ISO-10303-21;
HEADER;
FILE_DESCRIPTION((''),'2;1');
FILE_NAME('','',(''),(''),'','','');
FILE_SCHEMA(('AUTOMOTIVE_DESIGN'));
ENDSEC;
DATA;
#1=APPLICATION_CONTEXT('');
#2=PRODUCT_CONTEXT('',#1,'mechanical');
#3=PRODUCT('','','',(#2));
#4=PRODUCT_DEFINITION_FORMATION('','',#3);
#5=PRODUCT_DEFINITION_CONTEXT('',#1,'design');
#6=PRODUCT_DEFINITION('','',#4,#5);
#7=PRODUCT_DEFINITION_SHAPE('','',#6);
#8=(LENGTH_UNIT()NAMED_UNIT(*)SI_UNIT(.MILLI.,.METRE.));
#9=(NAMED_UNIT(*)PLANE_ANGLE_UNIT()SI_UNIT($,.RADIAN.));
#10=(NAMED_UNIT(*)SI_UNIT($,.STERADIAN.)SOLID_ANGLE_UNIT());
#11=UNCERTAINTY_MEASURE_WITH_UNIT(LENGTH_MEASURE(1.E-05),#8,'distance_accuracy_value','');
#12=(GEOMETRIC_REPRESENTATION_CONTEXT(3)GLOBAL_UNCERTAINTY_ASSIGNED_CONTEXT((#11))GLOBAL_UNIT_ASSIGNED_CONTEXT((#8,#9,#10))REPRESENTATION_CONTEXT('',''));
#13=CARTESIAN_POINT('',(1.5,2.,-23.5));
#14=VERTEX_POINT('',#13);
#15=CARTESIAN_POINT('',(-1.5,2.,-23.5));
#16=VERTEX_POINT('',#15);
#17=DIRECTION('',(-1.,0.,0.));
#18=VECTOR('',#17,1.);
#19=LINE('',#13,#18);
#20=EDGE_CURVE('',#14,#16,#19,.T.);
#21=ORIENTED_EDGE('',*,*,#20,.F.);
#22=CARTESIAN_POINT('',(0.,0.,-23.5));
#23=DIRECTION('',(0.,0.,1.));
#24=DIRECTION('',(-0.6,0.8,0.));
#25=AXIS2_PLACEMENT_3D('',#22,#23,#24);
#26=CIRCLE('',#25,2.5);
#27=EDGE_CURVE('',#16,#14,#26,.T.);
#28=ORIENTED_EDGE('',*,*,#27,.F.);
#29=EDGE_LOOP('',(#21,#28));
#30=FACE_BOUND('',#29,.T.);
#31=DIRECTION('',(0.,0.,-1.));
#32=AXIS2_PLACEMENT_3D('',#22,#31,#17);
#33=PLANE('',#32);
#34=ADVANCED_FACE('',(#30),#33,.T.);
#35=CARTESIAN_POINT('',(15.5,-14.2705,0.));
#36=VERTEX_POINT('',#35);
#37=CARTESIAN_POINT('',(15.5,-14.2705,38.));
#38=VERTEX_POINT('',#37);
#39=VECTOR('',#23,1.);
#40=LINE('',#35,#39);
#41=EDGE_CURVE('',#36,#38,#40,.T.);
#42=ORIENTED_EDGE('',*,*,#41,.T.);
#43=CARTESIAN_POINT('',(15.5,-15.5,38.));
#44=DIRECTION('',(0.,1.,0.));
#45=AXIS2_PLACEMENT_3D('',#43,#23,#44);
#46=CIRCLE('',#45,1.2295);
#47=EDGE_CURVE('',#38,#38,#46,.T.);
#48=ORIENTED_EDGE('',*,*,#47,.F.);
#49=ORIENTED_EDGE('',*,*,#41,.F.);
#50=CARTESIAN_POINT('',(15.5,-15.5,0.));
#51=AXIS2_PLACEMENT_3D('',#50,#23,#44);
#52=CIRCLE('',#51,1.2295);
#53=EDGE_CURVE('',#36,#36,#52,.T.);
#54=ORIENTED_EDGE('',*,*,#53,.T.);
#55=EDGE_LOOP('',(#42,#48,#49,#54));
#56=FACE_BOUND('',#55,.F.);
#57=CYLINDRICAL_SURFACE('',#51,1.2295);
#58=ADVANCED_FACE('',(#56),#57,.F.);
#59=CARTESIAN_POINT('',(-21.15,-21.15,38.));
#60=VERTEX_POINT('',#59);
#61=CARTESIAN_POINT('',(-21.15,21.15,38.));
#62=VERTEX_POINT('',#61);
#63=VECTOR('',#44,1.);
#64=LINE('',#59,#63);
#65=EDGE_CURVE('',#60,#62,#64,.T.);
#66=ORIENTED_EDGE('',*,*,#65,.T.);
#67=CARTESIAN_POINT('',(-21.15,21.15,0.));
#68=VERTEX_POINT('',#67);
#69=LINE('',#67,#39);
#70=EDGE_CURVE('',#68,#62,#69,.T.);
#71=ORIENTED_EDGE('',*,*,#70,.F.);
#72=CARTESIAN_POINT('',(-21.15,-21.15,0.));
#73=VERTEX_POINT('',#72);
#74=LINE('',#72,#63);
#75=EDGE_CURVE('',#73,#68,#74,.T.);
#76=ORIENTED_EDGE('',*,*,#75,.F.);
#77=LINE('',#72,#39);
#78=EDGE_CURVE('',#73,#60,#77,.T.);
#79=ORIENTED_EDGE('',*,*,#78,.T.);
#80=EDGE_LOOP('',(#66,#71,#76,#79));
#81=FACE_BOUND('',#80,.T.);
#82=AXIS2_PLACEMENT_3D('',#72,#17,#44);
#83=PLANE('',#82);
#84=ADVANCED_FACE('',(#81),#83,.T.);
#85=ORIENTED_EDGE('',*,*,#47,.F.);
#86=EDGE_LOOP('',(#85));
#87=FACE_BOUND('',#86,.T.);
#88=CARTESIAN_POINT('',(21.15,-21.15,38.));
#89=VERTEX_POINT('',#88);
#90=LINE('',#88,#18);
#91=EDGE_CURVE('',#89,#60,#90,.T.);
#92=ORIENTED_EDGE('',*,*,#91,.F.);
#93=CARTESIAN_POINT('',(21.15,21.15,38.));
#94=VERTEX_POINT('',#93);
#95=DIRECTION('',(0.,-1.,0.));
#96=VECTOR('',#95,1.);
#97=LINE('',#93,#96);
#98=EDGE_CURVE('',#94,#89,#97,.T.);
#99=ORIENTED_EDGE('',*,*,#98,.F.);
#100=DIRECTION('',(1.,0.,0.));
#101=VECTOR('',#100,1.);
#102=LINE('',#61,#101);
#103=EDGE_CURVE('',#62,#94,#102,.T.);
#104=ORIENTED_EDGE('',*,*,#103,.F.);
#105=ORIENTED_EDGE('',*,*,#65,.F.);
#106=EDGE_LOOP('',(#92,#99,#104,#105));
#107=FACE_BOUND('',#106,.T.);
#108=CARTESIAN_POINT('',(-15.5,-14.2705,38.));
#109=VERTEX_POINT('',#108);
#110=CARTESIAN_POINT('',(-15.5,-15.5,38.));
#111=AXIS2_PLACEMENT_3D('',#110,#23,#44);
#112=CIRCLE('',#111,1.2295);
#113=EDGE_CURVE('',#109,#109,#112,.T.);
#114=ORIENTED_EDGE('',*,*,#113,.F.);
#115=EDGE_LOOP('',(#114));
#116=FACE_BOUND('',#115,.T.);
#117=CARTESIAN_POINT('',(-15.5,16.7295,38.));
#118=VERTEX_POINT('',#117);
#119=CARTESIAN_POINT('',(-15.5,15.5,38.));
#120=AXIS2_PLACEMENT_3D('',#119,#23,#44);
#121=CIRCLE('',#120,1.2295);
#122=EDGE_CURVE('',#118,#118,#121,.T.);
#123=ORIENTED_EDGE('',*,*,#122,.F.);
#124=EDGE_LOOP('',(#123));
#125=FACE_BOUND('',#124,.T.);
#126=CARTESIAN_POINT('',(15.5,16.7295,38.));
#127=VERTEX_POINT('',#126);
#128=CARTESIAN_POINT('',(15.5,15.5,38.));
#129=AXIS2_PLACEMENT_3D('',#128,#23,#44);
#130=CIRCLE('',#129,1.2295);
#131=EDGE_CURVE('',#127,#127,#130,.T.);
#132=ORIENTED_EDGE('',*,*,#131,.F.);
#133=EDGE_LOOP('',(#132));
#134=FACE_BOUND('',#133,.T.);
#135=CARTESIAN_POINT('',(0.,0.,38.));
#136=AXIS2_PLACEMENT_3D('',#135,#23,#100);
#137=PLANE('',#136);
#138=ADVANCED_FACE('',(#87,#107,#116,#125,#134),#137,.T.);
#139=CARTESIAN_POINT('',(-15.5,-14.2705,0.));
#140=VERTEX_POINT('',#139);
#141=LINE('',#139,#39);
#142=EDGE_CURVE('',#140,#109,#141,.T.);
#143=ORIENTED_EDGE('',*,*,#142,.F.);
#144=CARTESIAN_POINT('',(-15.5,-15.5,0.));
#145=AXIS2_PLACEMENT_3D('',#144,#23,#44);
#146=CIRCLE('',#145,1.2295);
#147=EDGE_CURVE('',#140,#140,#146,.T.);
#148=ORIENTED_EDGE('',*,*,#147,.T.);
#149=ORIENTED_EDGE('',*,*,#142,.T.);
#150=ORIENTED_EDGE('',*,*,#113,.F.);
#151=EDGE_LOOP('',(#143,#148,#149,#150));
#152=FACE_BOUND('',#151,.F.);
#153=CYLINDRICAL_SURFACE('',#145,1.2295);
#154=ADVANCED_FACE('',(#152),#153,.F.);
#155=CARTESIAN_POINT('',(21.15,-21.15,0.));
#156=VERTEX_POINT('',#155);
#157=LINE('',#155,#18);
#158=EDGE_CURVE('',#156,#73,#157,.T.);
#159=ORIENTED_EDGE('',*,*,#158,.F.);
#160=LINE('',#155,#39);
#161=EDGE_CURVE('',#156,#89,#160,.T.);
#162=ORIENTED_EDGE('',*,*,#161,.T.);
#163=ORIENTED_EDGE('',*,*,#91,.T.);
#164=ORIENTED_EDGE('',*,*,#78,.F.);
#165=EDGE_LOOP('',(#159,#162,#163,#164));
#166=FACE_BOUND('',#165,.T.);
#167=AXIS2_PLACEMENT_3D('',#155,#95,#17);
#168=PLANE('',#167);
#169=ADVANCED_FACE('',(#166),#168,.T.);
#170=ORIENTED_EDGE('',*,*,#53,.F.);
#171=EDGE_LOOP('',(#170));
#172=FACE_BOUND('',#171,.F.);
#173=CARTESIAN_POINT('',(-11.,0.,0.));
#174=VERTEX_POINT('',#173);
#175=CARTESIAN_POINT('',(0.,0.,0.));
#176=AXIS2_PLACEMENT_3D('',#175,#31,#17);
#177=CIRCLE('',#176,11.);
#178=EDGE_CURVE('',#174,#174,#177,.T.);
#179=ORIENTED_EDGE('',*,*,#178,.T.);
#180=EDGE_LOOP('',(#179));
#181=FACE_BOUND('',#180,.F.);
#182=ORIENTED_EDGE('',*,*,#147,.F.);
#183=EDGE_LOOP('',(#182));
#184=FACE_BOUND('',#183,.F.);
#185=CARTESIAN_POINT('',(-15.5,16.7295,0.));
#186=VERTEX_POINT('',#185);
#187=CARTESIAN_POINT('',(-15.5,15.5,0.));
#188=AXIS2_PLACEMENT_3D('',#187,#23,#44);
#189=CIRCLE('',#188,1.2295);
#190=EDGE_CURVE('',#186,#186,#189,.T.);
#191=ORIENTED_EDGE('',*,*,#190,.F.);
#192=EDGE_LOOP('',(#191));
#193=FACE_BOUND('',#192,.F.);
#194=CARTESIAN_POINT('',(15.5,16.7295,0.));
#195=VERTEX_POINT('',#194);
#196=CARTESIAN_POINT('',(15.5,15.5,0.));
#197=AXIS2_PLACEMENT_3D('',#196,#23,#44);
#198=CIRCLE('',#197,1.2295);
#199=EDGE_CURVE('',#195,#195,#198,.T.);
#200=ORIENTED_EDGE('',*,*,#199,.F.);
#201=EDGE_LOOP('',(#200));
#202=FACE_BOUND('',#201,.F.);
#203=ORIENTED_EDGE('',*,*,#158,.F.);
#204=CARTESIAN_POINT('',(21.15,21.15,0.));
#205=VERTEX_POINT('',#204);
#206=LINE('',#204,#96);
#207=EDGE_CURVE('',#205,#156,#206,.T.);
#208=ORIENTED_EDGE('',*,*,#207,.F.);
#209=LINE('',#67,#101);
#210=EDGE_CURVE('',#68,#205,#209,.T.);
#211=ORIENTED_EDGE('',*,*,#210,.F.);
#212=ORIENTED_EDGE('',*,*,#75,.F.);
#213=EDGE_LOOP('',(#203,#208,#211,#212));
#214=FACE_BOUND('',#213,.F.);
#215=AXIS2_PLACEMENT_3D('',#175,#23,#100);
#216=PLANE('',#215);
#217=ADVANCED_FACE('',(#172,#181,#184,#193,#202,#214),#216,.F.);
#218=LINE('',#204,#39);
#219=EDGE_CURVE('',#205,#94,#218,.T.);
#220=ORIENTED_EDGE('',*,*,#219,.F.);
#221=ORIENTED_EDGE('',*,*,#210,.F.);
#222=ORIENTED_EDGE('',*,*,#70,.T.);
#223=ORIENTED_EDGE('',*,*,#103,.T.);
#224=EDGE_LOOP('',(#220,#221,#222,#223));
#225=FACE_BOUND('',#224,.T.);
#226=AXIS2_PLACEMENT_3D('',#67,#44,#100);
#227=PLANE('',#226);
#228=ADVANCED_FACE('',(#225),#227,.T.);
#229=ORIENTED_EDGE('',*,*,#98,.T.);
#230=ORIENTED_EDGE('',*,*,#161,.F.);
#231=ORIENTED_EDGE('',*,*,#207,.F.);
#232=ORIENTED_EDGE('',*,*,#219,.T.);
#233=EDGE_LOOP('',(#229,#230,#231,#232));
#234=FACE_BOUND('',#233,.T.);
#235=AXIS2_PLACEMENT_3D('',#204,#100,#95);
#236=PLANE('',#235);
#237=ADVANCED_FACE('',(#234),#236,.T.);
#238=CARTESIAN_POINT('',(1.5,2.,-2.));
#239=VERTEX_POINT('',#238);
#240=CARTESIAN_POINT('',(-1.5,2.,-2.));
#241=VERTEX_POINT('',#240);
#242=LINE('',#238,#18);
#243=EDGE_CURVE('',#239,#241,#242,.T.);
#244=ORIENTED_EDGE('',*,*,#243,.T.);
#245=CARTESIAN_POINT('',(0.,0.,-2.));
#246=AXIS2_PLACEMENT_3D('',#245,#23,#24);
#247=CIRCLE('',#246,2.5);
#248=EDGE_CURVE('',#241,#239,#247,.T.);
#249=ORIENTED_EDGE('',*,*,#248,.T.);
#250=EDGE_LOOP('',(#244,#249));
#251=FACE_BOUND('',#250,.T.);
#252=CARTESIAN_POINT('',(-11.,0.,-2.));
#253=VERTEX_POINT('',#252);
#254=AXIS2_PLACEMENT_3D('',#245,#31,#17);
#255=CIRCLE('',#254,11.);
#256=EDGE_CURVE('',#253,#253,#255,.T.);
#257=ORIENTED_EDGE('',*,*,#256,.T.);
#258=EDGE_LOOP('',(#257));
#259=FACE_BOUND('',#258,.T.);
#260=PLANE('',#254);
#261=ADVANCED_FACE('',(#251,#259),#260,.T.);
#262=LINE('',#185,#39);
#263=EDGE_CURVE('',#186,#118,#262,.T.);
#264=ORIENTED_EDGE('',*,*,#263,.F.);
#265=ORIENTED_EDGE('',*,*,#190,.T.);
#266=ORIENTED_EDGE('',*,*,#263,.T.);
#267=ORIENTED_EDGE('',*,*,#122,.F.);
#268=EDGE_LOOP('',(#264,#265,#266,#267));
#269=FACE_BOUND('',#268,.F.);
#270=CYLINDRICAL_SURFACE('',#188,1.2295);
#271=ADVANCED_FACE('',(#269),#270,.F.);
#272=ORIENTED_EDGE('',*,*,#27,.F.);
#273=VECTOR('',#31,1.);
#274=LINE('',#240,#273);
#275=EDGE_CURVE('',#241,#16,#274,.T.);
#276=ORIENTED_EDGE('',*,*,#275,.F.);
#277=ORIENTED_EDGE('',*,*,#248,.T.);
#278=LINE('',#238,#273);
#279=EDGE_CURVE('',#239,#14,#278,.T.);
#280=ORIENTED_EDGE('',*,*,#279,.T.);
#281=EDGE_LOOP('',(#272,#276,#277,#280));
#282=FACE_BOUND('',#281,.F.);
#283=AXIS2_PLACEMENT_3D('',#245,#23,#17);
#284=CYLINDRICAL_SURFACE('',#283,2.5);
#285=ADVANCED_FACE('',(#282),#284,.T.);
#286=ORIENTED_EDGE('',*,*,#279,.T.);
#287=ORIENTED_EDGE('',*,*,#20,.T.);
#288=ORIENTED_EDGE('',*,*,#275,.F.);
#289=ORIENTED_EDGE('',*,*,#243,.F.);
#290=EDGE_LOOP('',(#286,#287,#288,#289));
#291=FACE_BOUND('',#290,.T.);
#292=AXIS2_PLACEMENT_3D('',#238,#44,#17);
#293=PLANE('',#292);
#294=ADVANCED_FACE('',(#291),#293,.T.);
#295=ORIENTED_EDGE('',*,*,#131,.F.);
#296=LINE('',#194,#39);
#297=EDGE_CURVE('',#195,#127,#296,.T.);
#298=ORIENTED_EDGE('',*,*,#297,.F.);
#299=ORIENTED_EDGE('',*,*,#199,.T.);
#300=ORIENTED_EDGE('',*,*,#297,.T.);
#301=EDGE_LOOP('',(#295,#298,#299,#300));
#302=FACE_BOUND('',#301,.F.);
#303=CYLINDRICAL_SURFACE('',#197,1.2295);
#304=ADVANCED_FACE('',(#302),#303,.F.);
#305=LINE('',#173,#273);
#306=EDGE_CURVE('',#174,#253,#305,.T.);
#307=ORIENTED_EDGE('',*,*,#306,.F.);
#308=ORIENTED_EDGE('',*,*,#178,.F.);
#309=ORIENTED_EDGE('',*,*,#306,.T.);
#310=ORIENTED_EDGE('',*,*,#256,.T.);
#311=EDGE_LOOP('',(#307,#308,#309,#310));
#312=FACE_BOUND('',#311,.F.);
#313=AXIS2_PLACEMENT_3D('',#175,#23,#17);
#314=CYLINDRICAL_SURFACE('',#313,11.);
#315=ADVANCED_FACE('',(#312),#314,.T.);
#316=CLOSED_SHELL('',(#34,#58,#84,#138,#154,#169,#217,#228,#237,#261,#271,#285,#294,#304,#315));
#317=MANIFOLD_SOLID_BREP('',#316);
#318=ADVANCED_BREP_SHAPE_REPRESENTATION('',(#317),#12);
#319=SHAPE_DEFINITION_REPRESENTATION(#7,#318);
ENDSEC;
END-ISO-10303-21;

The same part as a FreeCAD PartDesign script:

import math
import FreeCAD as App
import Part
import Sketcher

V = App.Vector

doc = App.newDocument("Part")
body = doc.addObject("PartDesign::Body", "Body")

# Sketch on XY plane
sketch1 = doc.addObject("Sketcher::SketchObject", "Sketch")
body.addObject(sketch1)
sketch1.AttachmentSupport = (doc.XY_Plane, [""])
sketch1.MapMode = "FlatFace"
sketch1.addGeometry([
    Part.LineSegment(V(-21, -21, 0), V(21, -21, 0)),
    Part.LineSegment(V(21, -21, 0), V(21, 21, 0)),
    Part.LineSegment(V(21, 21, 0), V(-21, 21, 0)),
    Part.LineSegment(V(-21, 21, 0), V(-21, -21, 0)),
], False)
sketch1.addConstraint([
    Sketcher.Constraint("Coincident", 0, 2, 1, 1),
    Sketcher.Constraint("Coincident", 1, 2, 2, 1),
    Sketcher.Constraint("Coincident", 2, 2, 3, 1),
    Sketcher.Constraint("Coincident", 3, 2, 0, 1),
    Sketcher.Constraint("Horizontal", 0),
    Sketcher.Constraint("Vertical", 1),
    Sketcher.Constraint("Horizontal", 2),
    Sketcher.Constraint("Vertical", 3),
    Sketcher.Constraint("Symmetric", 0, 2, 2, 2, -1, 1),
    Sketcher.Constraint("Equal", 2, 1),
    Sketcher.Constraint("DistanceX", 0, 1, 0, 2, 42.3),
])
pad1 = doc.addObject("PartDesign::Pad", "Pad")
body.addObject(pad1)
pad1.Profile = sketch1
pad1.Length = 38

# Sketch on XY plane
sketch2 = doc.addObject("Sketcher::SketchObject", "Sketch001")
body.addObject(sketch2)
sketch2.AttachmentSupport = (doc.XY_Plane, [""])
sketch2.MapMode = "FlatFace"
sketch2.addGeometry([
    Part.Circle(V(15.5, 15.5, 0), V(0, 0, 1), 1.2),
    Part.Circle(V(-15.5, 15.5, 0), V(0, 0, 1), 1.2),
    Part.Circle(V(-15.5, -15.5, 0), V(0, 0, 1), 1.2),
    Part.Circle(V(15.5, -15.5, 0), V(0, 0, 1), 1.2),
], False)
sketch2.addConstraint([
    Sketcher.Constraint("Equal", 0, 1),
    Sketcher.Constraint("Equal", 1, 2),
    Sketcher.Constraint("Equal", 2, 3),
    Sketcher.Constraint("Symmetric", 0, 3, 2, 3, -1, 1),
    Sketcher.Constraint("Symmetric", 1, 3, 3, 3, -1, 1),
    Sketcher.Constraint("Symmetric", 0, 3, 1, 3, -2),
    Sketcher.Constraint("Diameter", 0, 2.459),
    Sketcher.Constraint("DistanceX", 1, 3, 0, 3, 31.0),
    Sketcher.Constraint("DistanceY", 2, 3, 1, 3, 31.0),
])
doc.recompute()
hole = doc.addObject("PartDesign::Hole", "Hole")
body.addObject(hole)
hole.Profile = sketch2
hole.ThreadType = "None"
hole.Diameter = 2.459
hole.DepthType = "ThroughAll"
hole.Reversed = True

# Sketch on XY plane
sketch3 = doc.addObject("Sketcher::SketchObject", "Sketch002")
body.addObject(sketch3)
sketch3.AttachmentSupport = (doc.XY_Plane, [""])
sketch3.MapMode = "FlatFace"
sketch3.addGeometry(Part.Circle(V(0, 0, 0), V(0, 0, 1), 11), False)
sketch3.addConstraint([
    Sketcher.Constraint("Coincident", 0, 3, -1, 1),
    Sketcher.Constraint("Diameter", 0, 22.0),
])
pad2 = doc.addObject("PartDesign::Pad", "Pad001")
body.addObject(pad2)
pad2.Profile = sketch3
pad2.Length = 2
pad2.Reversed = True

# Sketch on XY plane
sketch4 = doc.addObject("Sketcher::SketchObject", "Sketch003")
body.addObject(sketch4)
sketch4.AttachmentSupport = (doc.XY_Plane, [""])
sketch4.MapMode = "FlatFace"
sketch4.AttachmentOffset = App.Placement(V(0, 0, -2), App.Rotation())
sketch4.addGeometry([
    Part.ArcOfCircle(Part.Circle(V(0, 0, 0), V(0, 0, 1), 2.5), math.radians(127), math.radians(413)),
    Part.LineSegment(V(-1.5, 2, 0), V(1.5, 2, 0)),
], False)
sketch4.addConstraint([
    Sketcher.Constraint("Coincident", 0, 1, 1, 1),
    Sketcher.Constraint("Coincident", 1, 2, 0, 2),
    Sketcher.Constraint("Horizontal", 1),
    Sketcher.Constraint("Coincident", 0, 3, -1, 1),
    Sketcher.Constraint("Radius", 0, 2.5),
    Sketcher.Constraint("DistanceX", 1, 1, 1, 2, 3.0),
])
pad3 = doc.addObject("PartDesign::Pad", "Pad002")
body.addObject(pad3)
pad3.Profile = sketch4
pad3.Length = 21.5
pad3.Reversed = True

doc.recompute()
